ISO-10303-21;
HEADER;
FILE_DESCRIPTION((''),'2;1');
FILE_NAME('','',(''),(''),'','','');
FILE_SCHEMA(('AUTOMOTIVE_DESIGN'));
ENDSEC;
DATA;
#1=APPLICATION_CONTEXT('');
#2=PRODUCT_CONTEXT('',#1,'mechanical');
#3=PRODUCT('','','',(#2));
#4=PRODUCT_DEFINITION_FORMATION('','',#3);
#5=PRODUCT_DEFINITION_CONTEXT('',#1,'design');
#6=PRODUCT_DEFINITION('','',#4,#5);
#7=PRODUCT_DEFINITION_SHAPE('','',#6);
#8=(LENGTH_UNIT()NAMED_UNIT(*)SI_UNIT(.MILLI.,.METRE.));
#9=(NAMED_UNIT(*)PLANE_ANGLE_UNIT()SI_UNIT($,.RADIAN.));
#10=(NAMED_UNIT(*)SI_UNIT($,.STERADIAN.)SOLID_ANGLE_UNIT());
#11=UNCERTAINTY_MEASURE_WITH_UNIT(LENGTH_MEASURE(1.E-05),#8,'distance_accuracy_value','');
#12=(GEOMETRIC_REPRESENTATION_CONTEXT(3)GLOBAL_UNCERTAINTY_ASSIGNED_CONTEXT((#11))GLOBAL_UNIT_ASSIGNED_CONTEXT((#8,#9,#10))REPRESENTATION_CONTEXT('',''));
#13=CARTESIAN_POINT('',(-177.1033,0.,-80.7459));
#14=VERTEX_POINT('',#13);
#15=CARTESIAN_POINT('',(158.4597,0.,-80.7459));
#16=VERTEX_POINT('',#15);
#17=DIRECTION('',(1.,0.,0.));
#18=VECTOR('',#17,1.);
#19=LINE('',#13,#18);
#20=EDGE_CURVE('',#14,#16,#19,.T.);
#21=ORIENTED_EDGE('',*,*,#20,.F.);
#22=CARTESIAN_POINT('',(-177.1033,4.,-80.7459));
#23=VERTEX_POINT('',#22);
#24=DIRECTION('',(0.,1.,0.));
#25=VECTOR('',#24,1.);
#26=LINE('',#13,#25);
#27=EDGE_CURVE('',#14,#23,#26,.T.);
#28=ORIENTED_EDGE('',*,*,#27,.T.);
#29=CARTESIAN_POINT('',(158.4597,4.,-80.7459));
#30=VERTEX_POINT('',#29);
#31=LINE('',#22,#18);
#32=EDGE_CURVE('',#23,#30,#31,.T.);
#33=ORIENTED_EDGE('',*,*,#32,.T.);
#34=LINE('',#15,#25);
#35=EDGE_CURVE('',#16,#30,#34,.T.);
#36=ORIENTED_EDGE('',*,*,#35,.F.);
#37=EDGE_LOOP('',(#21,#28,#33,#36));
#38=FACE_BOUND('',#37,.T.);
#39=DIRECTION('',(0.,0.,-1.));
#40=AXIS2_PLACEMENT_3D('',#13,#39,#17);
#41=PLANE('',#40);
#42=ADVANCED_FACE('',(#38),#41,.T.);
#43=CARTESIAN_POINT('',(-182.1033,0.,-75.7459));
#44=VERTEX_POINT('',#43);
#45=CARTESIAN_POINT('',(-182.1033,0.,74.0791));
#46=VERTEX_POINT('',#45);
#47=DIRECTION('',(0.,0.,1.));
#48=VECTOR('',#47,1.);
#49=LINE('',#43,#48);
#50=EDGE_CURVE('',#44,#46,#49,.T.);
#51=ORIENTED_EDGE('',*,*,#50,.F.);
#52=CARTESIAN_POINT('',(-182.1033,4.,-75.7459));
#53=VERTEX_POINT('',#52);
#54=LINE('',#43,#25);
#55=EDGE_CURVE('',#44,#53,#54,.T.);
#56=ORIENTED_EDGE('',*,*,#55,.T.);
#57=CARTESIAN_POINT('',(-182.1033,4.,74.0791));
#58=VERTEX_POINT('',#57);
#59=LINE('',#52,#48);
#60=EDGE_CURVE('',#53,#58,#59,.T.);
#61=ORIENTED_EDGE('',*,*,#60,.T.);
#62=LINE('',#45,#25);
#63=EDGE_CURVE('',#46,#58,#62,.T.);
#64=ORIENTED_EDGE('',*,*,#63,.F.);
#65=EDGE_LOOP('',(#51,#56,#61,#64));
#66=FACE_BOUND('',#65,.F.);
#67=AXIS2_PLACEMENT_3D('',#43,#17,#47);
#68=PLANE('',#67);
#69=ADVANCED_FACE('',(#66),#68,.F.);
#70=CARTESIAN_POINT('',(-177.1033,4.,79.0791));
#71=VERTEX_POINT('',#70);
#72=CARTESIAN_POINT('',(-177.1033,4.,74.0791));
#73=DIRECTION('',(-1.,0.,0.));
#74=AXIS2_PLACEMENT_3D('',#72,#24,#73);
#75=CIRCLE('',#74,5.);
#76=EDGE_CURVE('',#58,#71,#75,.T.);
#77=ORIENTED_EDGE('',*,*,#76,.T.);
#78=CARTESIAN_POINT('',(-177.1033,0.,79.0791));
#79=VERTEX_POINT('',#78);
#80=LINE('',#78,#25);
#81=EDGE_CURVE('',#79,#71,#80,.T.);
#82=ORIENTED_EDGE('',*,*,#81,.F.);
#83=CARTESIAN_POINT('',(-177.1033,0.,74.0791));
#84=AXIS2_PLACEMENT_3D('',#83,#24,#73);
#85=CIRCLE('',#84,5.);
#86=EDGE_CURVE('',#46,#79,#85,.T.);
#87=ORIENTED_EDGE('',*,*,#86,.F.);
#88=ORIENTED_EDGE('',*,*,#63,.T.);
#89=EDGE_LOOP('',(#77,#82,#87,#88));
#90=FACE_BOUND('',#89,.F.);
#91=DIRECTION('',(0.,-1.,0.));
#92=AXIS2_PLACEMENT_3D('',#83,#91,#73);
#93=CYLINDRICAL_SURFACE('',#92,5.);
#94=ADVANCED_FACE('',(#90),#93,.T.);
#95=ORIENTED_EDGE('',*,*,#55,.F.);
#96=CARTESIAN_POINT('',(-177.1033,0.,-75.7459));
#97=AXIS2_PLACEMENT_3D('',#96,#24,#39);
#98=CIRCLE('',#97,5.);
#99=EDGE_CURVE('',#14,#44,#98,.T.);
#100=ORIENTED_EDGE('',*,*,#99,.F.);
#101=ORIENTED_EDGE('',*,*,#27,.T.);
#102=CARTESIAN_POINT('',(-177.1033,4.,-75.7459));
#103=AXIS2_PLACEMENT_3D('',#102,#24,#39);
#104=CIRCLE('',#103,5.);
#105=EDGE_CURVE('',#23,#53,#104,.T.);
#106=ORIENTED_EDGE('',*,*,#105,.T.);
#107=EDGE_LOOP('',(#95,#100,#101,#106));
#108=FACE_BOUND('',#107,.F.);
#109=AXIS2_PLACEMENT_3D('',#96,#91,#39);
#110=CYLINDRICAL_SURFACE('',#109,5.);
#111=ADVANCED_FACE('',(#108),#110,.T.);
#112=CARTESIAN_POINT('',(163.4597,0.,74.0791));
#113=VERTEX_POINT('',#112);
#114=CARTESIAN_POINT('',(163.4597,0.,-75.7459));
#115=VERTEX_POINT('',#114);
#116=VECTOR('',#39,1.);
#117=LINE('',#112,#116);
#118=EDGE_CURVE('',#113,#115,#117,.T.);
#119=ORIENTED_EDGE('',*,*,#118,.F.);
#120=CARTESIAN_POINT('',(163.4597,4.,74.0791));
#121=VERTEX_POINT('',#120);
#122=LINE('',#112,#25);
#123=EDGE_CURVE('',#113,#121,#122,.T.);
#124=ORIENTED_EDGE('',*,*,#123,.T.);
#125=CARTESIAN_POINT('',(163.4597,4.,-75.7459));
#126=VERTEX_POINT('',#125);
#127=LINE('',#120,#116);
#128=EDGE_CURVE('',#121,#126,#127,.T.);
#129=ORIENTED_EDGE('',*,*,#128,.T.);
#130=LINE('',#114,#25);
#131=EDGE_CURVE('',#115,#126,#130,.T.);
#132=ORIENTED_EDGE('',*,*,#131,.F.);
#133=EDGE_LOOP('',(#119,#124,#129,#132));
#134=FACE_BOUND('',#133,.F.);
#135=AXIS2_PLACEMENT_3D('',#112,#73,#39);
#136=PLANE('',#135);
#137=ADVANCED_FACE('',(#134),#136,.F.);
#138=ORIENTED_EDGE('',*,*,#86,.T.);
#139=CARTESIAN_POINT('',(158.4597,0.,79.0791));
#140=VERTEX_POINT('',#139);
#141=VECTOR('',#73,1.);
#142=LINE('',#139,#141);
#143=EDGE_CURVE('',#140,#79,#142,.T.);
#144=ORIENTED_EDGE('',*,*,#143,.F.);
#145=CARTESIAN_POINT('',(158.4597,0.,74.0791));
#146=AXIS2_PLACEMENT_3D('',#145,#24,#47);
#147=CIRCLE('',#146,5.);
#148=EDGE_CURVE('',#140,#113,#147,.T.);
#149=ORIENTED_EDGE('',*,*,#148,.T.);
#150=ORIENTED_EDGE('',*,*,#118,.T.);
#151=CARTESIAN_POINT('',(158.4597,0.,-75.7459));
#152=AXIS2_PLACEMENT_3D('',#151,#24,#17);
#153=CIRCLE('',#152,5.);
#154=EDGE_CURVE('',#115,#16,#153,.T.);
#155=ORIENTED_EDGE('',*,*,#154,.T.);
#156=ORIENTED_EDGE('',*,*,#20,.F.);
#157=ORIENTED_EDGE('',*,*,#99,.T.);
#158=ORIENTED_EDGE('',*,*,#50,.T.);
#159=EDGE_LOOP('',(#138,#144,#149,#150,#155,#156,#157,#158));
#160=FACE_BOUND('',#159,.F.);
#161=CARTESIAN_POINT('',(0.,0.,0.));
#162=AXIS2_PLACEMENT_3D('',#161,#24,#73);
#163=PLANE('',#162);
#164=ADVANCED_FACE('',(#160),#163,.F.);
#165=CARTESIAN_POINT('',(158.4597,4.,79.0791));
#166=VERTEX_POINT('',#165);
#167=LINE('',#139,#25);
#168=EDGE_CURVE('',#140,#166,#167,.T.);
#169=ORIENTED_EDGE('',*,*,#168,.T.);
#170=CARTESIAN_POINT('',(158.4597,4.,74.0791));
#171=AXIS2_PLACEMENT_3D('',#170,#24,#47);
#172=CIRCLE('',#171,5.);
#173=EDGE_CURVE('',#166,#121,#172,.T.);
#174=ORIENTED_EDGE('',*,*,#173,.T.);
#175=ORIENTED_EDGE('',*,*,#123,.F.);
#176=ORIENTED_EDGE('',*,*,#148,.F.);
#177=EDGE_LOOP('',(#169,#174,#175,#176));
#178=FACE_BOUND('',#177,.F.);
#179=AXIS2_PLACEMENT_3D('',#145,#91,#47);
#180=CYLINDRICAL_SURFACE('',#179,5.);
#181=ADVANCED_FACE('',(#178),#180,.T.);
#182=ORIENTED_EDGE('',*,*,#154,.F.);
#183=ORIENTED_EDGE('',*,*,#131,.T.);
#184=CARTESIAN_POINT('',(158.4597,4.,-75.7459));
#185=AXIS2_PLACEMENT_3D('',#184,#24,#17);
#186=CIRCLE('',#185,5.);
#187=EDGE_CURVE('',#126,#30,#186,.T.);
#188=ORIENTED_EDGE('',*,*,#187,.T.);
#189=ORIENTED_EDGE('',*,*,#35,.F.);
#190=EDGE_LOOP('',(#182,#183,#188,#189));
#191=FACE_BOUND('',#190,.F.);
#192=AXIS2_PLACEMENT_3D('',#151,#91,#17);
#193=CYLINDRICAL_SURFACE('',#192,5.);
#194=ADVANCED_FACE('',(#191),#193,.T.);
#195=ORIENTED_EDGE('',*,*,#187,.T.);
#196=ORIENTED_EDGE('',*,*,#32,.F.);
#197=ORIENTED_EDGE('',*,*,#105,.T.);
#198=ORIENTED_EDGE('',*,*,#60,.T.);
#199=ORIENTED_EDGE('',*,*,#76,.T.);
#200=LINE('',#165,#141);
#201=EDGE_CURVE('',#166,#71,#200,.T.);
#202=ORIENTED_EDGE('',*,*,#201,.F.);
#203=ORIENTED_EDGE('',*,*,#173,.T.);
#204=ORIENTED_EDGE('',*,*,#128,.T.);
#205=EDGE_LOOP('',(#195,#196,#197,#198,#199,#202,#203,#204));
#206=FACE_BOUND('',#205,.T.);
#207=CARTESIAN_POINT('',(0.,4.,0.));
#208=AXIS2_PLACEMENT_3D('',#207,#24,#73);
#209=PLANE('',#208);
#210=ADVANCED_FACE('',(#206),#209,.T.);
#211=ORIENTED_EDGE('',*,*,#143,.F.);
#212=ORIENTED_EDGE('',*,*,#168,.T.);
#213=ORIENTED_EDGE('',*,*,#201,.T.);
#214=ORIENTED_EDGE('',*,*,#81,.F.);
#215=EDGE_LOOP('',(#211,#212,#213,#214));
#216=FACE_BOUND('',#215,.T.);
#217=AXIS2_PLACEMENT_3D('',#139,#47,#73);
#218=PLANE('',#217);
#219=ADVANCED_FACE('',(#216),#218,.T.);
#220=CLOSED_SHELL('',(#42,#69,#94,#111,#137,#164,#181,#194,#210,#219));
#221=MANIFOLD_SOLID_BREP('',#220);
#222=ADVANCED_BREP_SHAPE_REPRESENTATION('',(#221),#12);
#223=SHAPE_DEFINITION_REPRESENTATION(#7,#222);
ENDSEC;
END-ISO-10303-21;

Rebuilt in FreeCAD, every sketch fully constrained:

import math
import FreeCAD as App
import Part
import Sketcher
Q = App.Units.Quantity

doc = App.newDocument("Part")
params = doc.addObject("Spreadsheet::Sheet", "Params")
for row, (alias, value) in enumerate([
    ("sketch1_radius", "5 mm"),
    ("pad1_length", "4 mm"),
], start=1):
    params.set(f"A{row}", alias)
    params.set(f"B{row}", "=" + value)
    params.setAlias(f"B{row}", alias)

body = doc.addObject("PartDesign::Body", "Body")

sketch1 = body.newObject("Sketcher::SketchObject", "Sketch")
sketch1.AttachmentSupport = (doc.getObject("XZ_Plane"), [""])
sketch1.MapMode = "FlatFace"
sketch1.addGeometry([
    Part.ArcOfCircle(Part.Circle(App.Vector(158.4597, 74.0791, 0), App.Vector(0, 0, 1), 5), math.radians(0), math.radians(90)),
    Part.LineSegment(App.Vector(163.4597, 74.0791, 0), App.Vector(163.4597, -75.7459, 0)),
    Part.ArcOfCircle(Part.Circle(App.Vector(158.4597, -75.7459, 0), App.Vector(0, 0, 1), 5), math.radians(-90), math.radians(0)),
    Part.LineSegment(App.Vector(158.4597, -80.7459, 0), App.Vector(-177.1033, -80.7459, 0)),
    Part.ArcOfCircle(Part.Circle(App.Vector(-177.1033, -75.7459, 0), App.Vector(0, 0, 1), 5), math.radians(180), math.radians(270)),
    Part.LineSegment(App.Vector(-182.1033, -75.7459, 0), App.Vector(-182.1033, 74.0791, 0)),
    Part.ArcOfCircle(Part.Circle(App.Vector(-177.1033, 74.0791, 0), App.Vector(0, 0, 1), 5), math.radians(90), math.radians(180)),
    Part.LineSegment(App.Vector(-177.1033, 79.0791, 0), App.Vector(158.4597, 79.0791, 0)),
], False)
sketch1.addConstraint([
    Sketcher.Constraint("Tangent", 0, 1, 1, 1),
    Sketcher.Constraint("Tangent", 1, 2, 2, 2),
    Sketcher.Constraint("Tangent", 2, 1, 3, 1),
    Sketcher.Constraint("Tangent", 3, 2, 4, 2),
    Sketcher.Constraint("Tangent", 4, 1, 5, 1),
    Sketcher.Constraint("Tangent", 5, 2, 6, 2),
    Sketcher.Constraint("Tangent", 6, 1, 7, 1),
    Sketcher.Constraint("Tangent", 7, 2, 0, 2),
    Sketcher.Constraint("Vertical", 1),
    Sketcher.Constraint("Horizontal", 3),
    Sketcher.Constraint("Vertical", 5),
    Sketcher.Constraint("Horizontal", 7),
    Sketcher.Constraint("Equal", 0, 2),
    Sketcher.Constraint("Equal", 2, 4),
    Sketcher.Constraint("Equal", 4, 6),
    Sketcher.Constraint("Radius", 0, Q("5 mm")),
    Sketcher.Constraint("DistanceX", 3, 2, 3, 1, Q("335.563 mm")),
    Sketcher.Constraint("DistanceY", 1, 2, 1, 1, Q("149.825 mm")),
    Sketcher.Constraint("DistanceY", -1, 1, 0, 3, Q("74.079 mm")),
    Sketcher.Constraint("DistanceX", -1, 1, 0, 3, Q("158.4597 mm")),
])
sketch1.setExpression("Constraints[15]", "Params.sketch1_radius")
pad1 = body.newObject("PartDesign::Pad", "Pad")
pad1.Profile = sketch1
pad1.setExpression("Length", "Params.pad1_length")
pad1.Reversed = True

doc.recompute()
